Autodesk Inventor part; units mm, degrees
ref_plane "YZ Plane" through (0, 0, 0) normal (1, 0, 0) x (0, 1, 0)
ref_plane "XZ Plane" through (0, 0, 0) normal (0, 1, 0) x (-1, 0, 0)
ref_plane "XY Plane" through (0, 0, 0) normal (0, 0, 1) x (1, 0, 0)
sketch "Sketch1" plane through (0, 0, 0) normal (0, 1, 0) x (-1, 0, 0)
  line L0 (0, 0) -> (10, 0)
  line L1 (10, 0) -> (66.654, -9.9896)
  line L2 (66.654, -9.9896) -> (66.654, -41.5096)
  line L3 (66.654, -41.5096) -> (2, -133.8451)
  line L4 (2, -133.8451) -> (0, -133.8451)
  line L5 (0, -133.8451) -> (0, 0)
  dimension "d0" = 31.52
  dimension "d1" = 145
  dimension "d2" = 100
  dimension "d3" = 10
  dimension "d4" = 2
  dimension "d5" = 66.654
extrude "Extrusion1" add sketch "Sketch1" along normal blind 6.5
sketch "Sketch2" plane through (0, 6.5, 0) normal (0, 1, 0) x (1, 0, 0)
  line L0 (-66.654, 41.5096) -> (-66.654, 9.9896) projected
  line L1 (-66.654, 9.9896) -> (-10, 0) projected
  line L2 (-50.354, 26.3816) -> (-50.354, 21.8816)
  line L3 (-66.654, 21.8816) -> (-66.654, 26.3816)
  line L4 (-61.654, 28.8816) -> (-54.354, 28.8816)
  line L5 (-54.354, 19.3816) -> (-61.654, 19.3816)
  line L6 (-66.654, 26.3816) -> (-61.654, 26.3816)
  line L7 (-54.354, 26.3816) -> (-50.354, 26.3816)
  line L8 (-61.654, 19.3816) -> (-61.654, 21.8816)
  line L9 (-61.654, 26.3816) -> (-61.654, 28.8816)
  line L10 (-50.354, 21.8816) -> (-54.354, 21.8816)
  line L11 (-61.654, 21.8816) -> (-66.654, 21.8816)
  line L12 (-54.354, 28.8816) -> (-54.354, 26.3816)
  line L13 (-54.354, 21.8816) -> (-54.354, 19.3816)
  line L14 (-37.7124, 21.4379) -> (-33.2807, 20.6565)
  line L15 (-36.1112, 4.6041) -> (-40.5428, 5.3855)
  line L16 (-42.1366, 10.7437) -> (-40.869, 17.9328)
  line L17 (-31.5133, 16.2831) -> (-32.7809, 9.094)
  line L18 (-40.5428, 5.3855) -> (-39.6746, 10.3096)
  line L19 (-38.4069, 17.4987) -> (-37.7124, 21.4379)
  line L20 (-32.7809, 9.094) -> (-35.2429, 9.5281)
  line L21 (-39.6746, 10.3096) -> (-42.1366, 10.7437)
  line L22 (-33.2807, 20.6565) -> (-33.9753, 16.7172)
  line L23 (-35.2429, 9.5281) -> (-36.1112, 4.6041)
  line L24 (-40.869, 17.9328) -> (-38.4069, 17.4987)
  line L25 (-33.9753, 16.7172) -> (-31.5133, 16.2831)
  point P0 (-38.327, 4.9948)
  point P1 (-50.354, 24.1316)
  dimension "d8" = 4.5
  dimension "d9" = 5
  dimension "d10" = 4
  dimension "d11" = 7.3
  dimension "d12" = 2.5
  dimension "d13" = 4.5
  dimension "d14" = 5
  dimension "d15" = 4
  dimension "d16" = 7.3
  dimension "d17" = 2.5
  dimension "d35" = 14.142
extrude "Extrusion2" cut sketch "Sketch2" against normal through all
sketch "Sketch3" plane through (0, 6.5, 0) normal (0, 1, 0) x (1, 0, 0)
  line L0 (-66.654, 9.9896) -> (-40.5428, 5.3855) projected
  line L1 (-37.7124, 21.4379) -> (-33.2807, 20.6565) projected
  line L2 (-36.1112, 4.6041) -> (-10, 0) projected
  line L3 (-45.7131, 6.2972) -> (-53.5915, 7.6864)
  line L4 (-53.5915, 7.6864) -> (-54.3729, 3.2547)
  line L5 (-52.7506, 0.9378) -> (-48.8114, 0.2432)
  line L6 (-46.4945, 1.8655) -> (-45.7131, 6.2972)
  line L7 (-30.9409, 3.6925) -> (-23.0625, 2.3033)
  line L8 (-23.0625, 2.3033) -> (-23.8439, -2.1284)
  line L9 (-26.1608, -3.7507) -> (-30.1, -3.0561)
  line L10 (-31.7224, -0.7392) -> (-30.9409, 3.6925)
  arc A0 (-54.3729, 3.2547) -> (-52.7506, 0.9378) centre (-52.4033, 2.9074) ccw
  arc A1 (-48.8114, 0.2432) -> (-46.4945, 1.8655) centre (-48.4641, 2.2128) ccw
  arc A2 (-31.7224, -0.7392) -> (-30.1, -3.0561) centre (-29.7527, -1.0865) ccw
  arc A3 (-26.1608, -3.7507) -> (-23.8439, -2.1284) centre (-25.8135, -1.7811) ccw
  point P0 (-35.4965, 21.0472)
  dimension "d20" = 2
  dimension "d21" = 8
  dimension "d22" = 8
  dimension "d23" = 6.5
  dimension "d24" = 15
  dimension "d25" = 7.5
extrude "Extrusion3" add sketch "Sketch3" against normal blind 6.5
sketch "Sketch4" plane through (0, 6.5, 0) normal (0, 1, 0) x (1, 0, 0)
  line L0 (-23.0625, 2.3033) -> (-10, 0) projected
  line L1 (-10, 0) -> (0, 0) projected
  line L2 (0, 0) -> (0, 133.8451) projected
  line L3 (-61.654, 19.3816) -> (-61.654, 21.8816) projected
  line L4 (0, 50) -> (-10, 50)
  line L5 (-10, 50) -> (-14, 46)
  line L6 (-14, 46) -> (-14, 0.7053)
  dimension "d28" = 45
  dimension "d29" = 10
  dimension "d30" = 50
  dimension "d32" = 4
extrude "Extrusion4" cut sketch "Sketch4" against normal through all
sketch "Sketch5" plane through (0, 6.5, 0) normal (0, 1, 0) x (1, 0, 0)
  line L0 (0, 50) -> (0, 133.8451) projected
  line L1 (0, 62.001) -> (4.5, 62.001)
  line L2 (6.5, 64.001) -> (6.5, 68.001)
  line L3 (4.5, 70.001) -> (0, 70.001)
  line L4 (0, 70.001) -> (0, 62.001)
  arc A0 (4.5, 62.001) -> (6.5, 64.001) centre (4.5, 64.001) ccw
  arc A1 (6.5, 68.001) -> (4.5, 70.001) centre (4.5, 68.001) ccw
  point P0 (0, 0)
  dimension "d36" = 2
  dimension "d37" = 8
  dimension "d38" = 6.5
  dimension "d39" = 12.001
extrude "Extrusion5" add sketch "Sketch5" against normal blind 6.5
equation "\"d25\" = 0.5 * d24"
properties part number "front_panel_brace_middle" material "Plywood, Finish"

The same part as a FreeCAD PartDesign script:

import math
import FreeCAD as App
import Part
import Sketcher
Q = App.Units.Quantity


def add_polygon(sketch, points):
    """Adds a closed chain of lines whose ends are joined by coincident constraints."""
    first, n = sketch.GeometryCount, len(points)
    for a, b in zip(points, points[1:] + points[:1]):
        sketch.addGeometry(Part.LineSegment(App.Vector(*a, 0), App.Vector(*b, 0)), False)
    for i in range(n):
        sketch.addConstraint(Sketcher.Constraint("Coincident", first + i, 2, first + (i + 1) % n, 1))

doc = App.newDocument("Part")
body = doc.addObject("PartDesign::Body", "Body")

# Sketch on XZ plane
sketch1 = doc.addObject("Sketcher::SketchObject", "Sketch")
body.addObject(sketch1)
sketch1.AttachmentSupport = (doc.XZ_Plane, [""])
sketch1.MapMode = "FlatFace"
add_polygon(sketch1, [(-10, 0), (0, 0), (0, -133.8), (-2, -133.8), (-66.7, -41.5), (-66.7, -10)])  # lines 0-5
sketch1.addConstraint([
    Sketcher.Constraint("Horizontal", 0),
    Sketcher.Constraint("Vertical", 1),
    Sketcher.Constraint("Horizontal", 2),
    Sketcher.Constraint("Vertical", 4),
    Sketcher.Constraint("Coincident", 0, 2, -1, 1),
    Sketcher.Constraint("DistanceX", 0, 1, 0, 2, 10.0),
    Sketcher.Constraint("DistanceX", 2, 2, 2, 1, 2.0),
    Sketcher.Constraint("Angle", 5, Q("10 deg")),
    Sketcher.Constraint("DistanceY", 4, 1, 4, 2, 31.52),
    Sketcher.Constraint("Angle", 3, Q("125 deg")),
    Sketcher.Constraint("DistanceX", 3, 2, -1, 1, 66.654),
])
pad1 = doc.addObject("PartDesign::Pad", "Pad")
body.addObject(pad1)
pad1.Profile = sketch1
pad1.Length = 6.5
pad1.Reversed = True

# Sketch on XZ plane
sketch2 = doc.addObject("Sketcher::SketchObject", "Sketch001")
body.addObject(sketch2)
sketch2.AttachmentSupport = (doc.XZ_Plane, [""])
sketch2.MapMode = "FlatFace"
sketch2.AttachmentOffset = App.Placement(App.Vector(0, 0, -6.5), App.Rotation())
add_polygon(sketch2, [(-61.7, -26.4), (-66.7, -26.4), (-66.7, -21.9), (-61.7, -21.9), (-61.7, -19.4), (-54.4, -19.4), (-54.4, -21.9), (-50.4, -21.9), (-50.4, -26.4), (-54.4, -26.4), (-54.4, -28.9), (-61.7, -28.9)])  # lines 0-11
add_polygon(sketch2, [(-39.7, -10.3), (-40.5, -5.4), (-36.1, -4.6), (-35.2, -9.5), (-32.8, -9.1), (-31.5, -16.3), (-34, -16.7), (-33.3, -20.7), (-37.7, -21.4), (-38.4, -17.5), (-40.9, -17.9), (-42.1, -10.7)])  # lines 12-23
sketch2.addConstraint([
    Sketcher.Constraint("Horizontal", 0),
    Sketcher.Constraint("Vertical", 1),
    Sketcher.Constraint("Horizontal", 2),
    Sketcher.Constraint("Vertical", 3),
    Sketcher.Constraint("Horizontal", 4),
    Sketcher.Constraint("Vertical", 5),
    Sketcher.Constraint("Horizontal", 6),
    Sketcher.Constraint("Vertical", 7),
    Sketcher.Constraint("Horizontal", 8),
    Sketcher.Constraint("Vertical", 9),
    Sketcher.Constraint("Horizontal", 10),
    Sketcher.Constraint("Vertical", 11),
    Sketcher.Constraint("Perpendicular", 12, 13),
    Sketcher.Constraint("Perpendicular", 13, 14),
    Sketcher.Constraint("Perpendicular", 14, 15),
    Sketcher.Constraint("Perpendicular", 15, 16),
    Sketcher.Constraint("Perpendicular", 16, 17),
    Sketcher.Constraint("Perpendicular", 17, 18),
    Sketcher.Constraint("Perpendicular", 18, 19),
    Sketcher.Constraint("Perpendicular", 19, 20),
    Sketcher.Constraint("Perpendicular", 20, 21),
    Sketcher.Constraint("Perpendicular", 21, 22),
    Sketcher.Constraint("Perpendicular", 22, 23),
    Sketcher.Constraint("Horizontal", 2, 2, 5, 2),
    Sketcher.Constraint("Horizontal", 0, 2, 7, 2),
    Sketcher.Constraint("Vertical", 5, 2, 8, 2),
    Sketcher.Constraint("Vertical", 3, 2, 10, 2),
    Sketcher.Constraint("Equal", 5, 9),
    Sketcher.Constraint("Equal", 12, 14),
    Sketcher.Constraint("Equal", 15, 17),
    Sketcher.Constraint("Equal", 13, 19),
    Sketcher.Constraint("Equal", 18, 20),
    Sketcher.Constraint("Equal", 17, 21),
    Sketcher.Constraint("DistanceX", 0, 2, 0, 1, 5.0),
    Sketcher.Constraint("DistanceX", 6, 1, 6, 2, 4.0),
    Sketcher.Constraint("Distance", 12, 5.0),
    Sketcher.Constraint("Distance", 18, 4.0),
    Sketcher.Constraint("DistanceX", 4, 1, 4, 2, 7.3),
    Sketcher.Constraint("DistanceY", 1, 1, 1, 2, 4.5),
    Sketcher.Constraint("DistanceY", 3, 1, 3, 2, 2.5),
    Sketcher.Constraint("Distance", 13, 4.5),
    Sketcher.Constraint("Distance", 15, 2.5),
    Sketcher.Constraint("Distance", 16, 7.3),
    Sketcher.Constraint("Angle", 12, Q("99.9994 deg")),
    Sketcher.Constraint("DistanceX", 0, 2, -1, 1, 66.654),
    Sketcher.Constraint("DistanceY", 13, 2, -1, 1, 4.604),
    Sketcher.Constraint("DistanceX", 14, 2, -1, 1, 35.243),
    Sketcher.Constraint("DistanceY", 6, 2, 12, 2, 16.496),
])
pocket1 = doc.addObject("PartDesign::Pocket", "Pocket")
body.addObject(pocket1)
pocket1.Profile = sketch2
pocket1.Type = "ThroughAll"
pocket1.Reversed = True

# Sketch on XZ plane
sketch3 = doc.addObject("Sketcher::SketchObject", "Sketch002")
body.addObject(sketch3)
sketch3.AttachmentSupport = (doc.XZ_Plane, [""])
sketch3.MapMode = "FlatFace"
sketch3.AttachmentOffset = App.Placement(App.Vector(0, 0, -6.5), App.Rotation())
sketch3.addGeometry([
    Part.LineSegment(App.Vector(-45.7, -6.3, 0), App.Vector(-53.6, -7.7, 0)),  # 0
    Part.LineSegment(App.Vector(-53.6, -7.7, 0), App.Vector(-54.4, -3.3, 0)),  # 1
    Part.ArcOfCircle(Part.Circle(App.Vector(-52.4, -2.9, 0), App.Vector(0, 0, 1), 2), math.radians(100), math.radians(190)),  # 2
    Part.LineSegment(App.Vector(-52.8, -0.9, 0), App.Vector(-48.8, -0.2, 0)),  # 3
    Part.ArcOfCircle(Part.Circle(App.Vector(-48.5, -2.2, 0), App.Vector(0, 0, 1), 2), math.radians(10), math.radians(100)),  # 4
    Part.LineSegment(App.Vector(-46.5, -1.9, 0), App.Vector(-45.7, -6.3, 0)),  # 5
    Part.LineSegment(App.Vector(-23.1, -2.3, 0), App.Vector(-30.9, -3.7, 0)),  # 6
    Part.LineSegment(App.Vector(-30.9, -3.7, 0), App.Vector(-31.7, 0.7, 0)),  # 7
    Part.ArcOfCircle(Part.Circle(App.Vector(-29.8, 1.1, 0), App.Vector(0, 0, 1), 2), math.radians(100), math.radians(190)),  # 8
    Part.LineSegment(App.Vector(-30.1, 3.1, 0), App.Vector(-26.2, 3.8, 0)),  # 9
    Part.ArcOfCircle(Part.Circle(App.Vector(-25.8, 1.8, 0), App.Vector(0, 0, 1), 2), math.radians(10), math.radians(100)),  # 10
    Part.LineSegment(App.Vector(-23.8, 2.1, 0), App.Vector(-23.1, -2.3, 0)),  # 11
], False)
sketch3.addConstraint([
    Sketcher.Constraint("Coincident", 0, 2, 1, 1),
    Sketcher.Constraint("Tangent", 1, 2, 2, 2),
    Sketcher.Constraint("Tangent", 2, 1, 3, 1),
    Sketcher.Constraint("Tangent", 3, 2, 4, 2),
    Sketcher.Constraint("Tangent", 4, 1, 5, 1),
    Sketcher.Constraint("Coincident", 5, 2, 0, 1),
    Sketcher.Constraint("Coincident", 6, 2, 7, 1),
    Sketcher.Constraint("Tangent", 7, 2, 8, 2),
    Sketcher.Constraint("Tangent", 8, 1, 9, 1),
    Sketcher.Constraint("Tangent", 9, 2, 10, 2),
    Sketcher.Constraint("Tangent", 10, 1, 11, 1),
    Sketcher.Constraint("Coincident", 11, 2, 6, 1),
    Sketcher.Constraint("Equal", 2, 4),
    Sketcher.Constraint("Equal", 4, 8),
    Sketcher.Constraint("Equal", 8, 10),
    Sketcher.Constraint("Perpendicular", 0, 1),
    Sketcher.Constraint("Perpendicular", 1, 3),
    Sketcher.Constraint("Perpendicular", 3, 5),
    Sketcher.Constraint("Perpendicular", 5, 6),
    Sketcher.Constraint("Perpendicular", 6, 7),
    Sketcher.Constraint("Perpendicular", 7, 9),
    Sketcher.Constraint("Perpendicular", 9, 11),
    Sketcher.Constraint("Equal", 0, 6),
    Sketcher.Constraint("Equal", 5, 7),
    Sketcher.Constraint("Radius", 2, 2.0),
    Sketcher.Constraint("Distance", 0, 8.0),
    Sketcher.Constraint("Angle", 0, Q("-170 deg")),
    Sketcher.Constraint("Distance", 1, 4.5),
    Sketcher.Constraint("DistanceX", 8, 1, -1, 1, 30.1),
    Sketcher.Constraint("DistanceX", 4, 3, -1, 1, 48.464),
    Sketcher.Constraint("DistanceY", -1, 1, 10, 3, 1.781),
    Sketcher.Constraint("DistanceY", 2, 3, 8, 3, 3.994),
])
pad2 = doc.addObject("PartDesign::Pad", "Pad001")
body.addObject(pad2)
pad2.Profile = sketch3
pad2.Length = 6.5

# Sketch on XZ plane
sketch4 = doc.addObject("Sketcher::SketchObject", "Sketch003")
body.addObject(sketch4)
sketch4.AttachmentSupport = (doc.XZ_Plane, [""])
sketch4.MapMode = "FlatFace"
sketch4.AttachmentOffset = App.Placement(App.Vector(0, 0, -6.5), App.Rotation())
add_polygon(sketch4, [(-14, -46), (-14, -0.7), (-10, 0), (0, 0), (0, -50), (-10, -50)])  # lines 0-5
sketch4.addConstraint([
    Sketcher.Constraint("Vertical", 0),
    Sketcher.Constraint("Horizontal", 2),
    Sketcher.Constraint("Vertical", 3),
    Sketcher.Constraint("Horizontal", 4),
    Sketcher.Constraint("Coincident", 2, 2, -1, 1),
    Sketcher.Constraint("Vertical", 1, 2, 4, 2),
    Sketcher.Constraint("DistanceX", 2, 1, 2, 2, 10.0),
    Sketcher.Constraint("DistanceY", 3, 2, 3, 1, 50.0),
    Sketcher.Constraint("Angle", 1, Q("10.0001 deg")),
    Sketcher.Constraint("DistanceX", 0, 2, 1, 2, 4.0),
    Sketcher.Constraint("DistanceY", 4, 2, 5, 2, 4.0),
])
pocket2 = doc.addObject("PartDesign::Pocket", "Pocket001")
body.addObject(pocket2)
pocket2.Profile = sketch4
pocket2.Type = "ThroughAll"
pocket2.Reversed = True

# Sketch on XZ plane
sketch5 = doc.addObject("Sketcher::SketchObject", "Sketch004")
body.addObject(sketch5)
sketch5.AttachmentSupport = (doc.XZ_Plane, [""])
sketch5.MapMode = "FlatFace"
sketch5.AttachmentOffset = App.Placement(App.Vector(0, 0, -6.5), App.Rotation())
sketch5.addGeometry([
    Part.LineSegment(App.Vector(0, -70, 0), App.Vector(0, -62, 0)),  # 0
    Part.LineSegment(App.Vector(0, -62, 0), App.Vector(4.5, -62, 0)),  # 1
    Part.ArcOfCircle(Part.Circle(App.Vector(4.5, -64, 0), App.Vector(0, 0, 1), 2), math.radians(0), math.radians(90)),  # 2
    Part.LineSegment(App.Vector(6.5, -64, 0), App.Vector(6.5, -68, 0)),  # 3
    Part.ArcOfCircle(Part.Circle(App.Vector(4.5, -68, 0), App.Vector(0, 0, 1), 2), math.radians(-90), math.radians(0)),  # 4
    Part.LineSegment(App.Vector(4.5, -70, 0), App.Vector(0, -70, 0)),  # 5
], False)
sketch5.addConstraint([
    Sketcher.Constraint("Coincident", 0, 2, 1, 1),
    Sketcher.Constraint("Tangent", 1, 2, 2, 2),
    Sketcher.Constraint("Tangent", 2, 1, 3, 1),
    Sketcher.Constraint("Tangent", 3, 2, 4, 2),
    Sketcher.Constraint("Tangent", 4, 1, 5, 1),
    Sketcher.Constraint("Coincident", 5, 2, 0, 1),
    Sketcher.Constraint("Vertical", 0),
    Sketcher.Constraint("Horizontal", 1),
    Sketcher.Constraint("Vertical", 3),
    Sketcher.Constraint("Horizontal", 5),
    Sketcher.Constraint("Equal", 2, 4),
    Sketcher.Constraint("PointOnObject", 0, 2, -2),
    Sketcher.Constraint("Radius", 2, 2.0),
    Sketcher.Constraint("DistanceY", 0, 1, 0, 2, 8.0),
    Sketcher.Constraint("DistanceX", -1, 1, 2, 1, 6.5),
    Sketcher.Constraint("DistanceY", 2, 3, -1, 1, 64.001),
])
pad3 = doc.addObject("PartDesign::Pad", "Pad002")
body.addObject(pad3)
pad3.Profile = sketch5
pad3.Length = 6.5

doc.recompute()
